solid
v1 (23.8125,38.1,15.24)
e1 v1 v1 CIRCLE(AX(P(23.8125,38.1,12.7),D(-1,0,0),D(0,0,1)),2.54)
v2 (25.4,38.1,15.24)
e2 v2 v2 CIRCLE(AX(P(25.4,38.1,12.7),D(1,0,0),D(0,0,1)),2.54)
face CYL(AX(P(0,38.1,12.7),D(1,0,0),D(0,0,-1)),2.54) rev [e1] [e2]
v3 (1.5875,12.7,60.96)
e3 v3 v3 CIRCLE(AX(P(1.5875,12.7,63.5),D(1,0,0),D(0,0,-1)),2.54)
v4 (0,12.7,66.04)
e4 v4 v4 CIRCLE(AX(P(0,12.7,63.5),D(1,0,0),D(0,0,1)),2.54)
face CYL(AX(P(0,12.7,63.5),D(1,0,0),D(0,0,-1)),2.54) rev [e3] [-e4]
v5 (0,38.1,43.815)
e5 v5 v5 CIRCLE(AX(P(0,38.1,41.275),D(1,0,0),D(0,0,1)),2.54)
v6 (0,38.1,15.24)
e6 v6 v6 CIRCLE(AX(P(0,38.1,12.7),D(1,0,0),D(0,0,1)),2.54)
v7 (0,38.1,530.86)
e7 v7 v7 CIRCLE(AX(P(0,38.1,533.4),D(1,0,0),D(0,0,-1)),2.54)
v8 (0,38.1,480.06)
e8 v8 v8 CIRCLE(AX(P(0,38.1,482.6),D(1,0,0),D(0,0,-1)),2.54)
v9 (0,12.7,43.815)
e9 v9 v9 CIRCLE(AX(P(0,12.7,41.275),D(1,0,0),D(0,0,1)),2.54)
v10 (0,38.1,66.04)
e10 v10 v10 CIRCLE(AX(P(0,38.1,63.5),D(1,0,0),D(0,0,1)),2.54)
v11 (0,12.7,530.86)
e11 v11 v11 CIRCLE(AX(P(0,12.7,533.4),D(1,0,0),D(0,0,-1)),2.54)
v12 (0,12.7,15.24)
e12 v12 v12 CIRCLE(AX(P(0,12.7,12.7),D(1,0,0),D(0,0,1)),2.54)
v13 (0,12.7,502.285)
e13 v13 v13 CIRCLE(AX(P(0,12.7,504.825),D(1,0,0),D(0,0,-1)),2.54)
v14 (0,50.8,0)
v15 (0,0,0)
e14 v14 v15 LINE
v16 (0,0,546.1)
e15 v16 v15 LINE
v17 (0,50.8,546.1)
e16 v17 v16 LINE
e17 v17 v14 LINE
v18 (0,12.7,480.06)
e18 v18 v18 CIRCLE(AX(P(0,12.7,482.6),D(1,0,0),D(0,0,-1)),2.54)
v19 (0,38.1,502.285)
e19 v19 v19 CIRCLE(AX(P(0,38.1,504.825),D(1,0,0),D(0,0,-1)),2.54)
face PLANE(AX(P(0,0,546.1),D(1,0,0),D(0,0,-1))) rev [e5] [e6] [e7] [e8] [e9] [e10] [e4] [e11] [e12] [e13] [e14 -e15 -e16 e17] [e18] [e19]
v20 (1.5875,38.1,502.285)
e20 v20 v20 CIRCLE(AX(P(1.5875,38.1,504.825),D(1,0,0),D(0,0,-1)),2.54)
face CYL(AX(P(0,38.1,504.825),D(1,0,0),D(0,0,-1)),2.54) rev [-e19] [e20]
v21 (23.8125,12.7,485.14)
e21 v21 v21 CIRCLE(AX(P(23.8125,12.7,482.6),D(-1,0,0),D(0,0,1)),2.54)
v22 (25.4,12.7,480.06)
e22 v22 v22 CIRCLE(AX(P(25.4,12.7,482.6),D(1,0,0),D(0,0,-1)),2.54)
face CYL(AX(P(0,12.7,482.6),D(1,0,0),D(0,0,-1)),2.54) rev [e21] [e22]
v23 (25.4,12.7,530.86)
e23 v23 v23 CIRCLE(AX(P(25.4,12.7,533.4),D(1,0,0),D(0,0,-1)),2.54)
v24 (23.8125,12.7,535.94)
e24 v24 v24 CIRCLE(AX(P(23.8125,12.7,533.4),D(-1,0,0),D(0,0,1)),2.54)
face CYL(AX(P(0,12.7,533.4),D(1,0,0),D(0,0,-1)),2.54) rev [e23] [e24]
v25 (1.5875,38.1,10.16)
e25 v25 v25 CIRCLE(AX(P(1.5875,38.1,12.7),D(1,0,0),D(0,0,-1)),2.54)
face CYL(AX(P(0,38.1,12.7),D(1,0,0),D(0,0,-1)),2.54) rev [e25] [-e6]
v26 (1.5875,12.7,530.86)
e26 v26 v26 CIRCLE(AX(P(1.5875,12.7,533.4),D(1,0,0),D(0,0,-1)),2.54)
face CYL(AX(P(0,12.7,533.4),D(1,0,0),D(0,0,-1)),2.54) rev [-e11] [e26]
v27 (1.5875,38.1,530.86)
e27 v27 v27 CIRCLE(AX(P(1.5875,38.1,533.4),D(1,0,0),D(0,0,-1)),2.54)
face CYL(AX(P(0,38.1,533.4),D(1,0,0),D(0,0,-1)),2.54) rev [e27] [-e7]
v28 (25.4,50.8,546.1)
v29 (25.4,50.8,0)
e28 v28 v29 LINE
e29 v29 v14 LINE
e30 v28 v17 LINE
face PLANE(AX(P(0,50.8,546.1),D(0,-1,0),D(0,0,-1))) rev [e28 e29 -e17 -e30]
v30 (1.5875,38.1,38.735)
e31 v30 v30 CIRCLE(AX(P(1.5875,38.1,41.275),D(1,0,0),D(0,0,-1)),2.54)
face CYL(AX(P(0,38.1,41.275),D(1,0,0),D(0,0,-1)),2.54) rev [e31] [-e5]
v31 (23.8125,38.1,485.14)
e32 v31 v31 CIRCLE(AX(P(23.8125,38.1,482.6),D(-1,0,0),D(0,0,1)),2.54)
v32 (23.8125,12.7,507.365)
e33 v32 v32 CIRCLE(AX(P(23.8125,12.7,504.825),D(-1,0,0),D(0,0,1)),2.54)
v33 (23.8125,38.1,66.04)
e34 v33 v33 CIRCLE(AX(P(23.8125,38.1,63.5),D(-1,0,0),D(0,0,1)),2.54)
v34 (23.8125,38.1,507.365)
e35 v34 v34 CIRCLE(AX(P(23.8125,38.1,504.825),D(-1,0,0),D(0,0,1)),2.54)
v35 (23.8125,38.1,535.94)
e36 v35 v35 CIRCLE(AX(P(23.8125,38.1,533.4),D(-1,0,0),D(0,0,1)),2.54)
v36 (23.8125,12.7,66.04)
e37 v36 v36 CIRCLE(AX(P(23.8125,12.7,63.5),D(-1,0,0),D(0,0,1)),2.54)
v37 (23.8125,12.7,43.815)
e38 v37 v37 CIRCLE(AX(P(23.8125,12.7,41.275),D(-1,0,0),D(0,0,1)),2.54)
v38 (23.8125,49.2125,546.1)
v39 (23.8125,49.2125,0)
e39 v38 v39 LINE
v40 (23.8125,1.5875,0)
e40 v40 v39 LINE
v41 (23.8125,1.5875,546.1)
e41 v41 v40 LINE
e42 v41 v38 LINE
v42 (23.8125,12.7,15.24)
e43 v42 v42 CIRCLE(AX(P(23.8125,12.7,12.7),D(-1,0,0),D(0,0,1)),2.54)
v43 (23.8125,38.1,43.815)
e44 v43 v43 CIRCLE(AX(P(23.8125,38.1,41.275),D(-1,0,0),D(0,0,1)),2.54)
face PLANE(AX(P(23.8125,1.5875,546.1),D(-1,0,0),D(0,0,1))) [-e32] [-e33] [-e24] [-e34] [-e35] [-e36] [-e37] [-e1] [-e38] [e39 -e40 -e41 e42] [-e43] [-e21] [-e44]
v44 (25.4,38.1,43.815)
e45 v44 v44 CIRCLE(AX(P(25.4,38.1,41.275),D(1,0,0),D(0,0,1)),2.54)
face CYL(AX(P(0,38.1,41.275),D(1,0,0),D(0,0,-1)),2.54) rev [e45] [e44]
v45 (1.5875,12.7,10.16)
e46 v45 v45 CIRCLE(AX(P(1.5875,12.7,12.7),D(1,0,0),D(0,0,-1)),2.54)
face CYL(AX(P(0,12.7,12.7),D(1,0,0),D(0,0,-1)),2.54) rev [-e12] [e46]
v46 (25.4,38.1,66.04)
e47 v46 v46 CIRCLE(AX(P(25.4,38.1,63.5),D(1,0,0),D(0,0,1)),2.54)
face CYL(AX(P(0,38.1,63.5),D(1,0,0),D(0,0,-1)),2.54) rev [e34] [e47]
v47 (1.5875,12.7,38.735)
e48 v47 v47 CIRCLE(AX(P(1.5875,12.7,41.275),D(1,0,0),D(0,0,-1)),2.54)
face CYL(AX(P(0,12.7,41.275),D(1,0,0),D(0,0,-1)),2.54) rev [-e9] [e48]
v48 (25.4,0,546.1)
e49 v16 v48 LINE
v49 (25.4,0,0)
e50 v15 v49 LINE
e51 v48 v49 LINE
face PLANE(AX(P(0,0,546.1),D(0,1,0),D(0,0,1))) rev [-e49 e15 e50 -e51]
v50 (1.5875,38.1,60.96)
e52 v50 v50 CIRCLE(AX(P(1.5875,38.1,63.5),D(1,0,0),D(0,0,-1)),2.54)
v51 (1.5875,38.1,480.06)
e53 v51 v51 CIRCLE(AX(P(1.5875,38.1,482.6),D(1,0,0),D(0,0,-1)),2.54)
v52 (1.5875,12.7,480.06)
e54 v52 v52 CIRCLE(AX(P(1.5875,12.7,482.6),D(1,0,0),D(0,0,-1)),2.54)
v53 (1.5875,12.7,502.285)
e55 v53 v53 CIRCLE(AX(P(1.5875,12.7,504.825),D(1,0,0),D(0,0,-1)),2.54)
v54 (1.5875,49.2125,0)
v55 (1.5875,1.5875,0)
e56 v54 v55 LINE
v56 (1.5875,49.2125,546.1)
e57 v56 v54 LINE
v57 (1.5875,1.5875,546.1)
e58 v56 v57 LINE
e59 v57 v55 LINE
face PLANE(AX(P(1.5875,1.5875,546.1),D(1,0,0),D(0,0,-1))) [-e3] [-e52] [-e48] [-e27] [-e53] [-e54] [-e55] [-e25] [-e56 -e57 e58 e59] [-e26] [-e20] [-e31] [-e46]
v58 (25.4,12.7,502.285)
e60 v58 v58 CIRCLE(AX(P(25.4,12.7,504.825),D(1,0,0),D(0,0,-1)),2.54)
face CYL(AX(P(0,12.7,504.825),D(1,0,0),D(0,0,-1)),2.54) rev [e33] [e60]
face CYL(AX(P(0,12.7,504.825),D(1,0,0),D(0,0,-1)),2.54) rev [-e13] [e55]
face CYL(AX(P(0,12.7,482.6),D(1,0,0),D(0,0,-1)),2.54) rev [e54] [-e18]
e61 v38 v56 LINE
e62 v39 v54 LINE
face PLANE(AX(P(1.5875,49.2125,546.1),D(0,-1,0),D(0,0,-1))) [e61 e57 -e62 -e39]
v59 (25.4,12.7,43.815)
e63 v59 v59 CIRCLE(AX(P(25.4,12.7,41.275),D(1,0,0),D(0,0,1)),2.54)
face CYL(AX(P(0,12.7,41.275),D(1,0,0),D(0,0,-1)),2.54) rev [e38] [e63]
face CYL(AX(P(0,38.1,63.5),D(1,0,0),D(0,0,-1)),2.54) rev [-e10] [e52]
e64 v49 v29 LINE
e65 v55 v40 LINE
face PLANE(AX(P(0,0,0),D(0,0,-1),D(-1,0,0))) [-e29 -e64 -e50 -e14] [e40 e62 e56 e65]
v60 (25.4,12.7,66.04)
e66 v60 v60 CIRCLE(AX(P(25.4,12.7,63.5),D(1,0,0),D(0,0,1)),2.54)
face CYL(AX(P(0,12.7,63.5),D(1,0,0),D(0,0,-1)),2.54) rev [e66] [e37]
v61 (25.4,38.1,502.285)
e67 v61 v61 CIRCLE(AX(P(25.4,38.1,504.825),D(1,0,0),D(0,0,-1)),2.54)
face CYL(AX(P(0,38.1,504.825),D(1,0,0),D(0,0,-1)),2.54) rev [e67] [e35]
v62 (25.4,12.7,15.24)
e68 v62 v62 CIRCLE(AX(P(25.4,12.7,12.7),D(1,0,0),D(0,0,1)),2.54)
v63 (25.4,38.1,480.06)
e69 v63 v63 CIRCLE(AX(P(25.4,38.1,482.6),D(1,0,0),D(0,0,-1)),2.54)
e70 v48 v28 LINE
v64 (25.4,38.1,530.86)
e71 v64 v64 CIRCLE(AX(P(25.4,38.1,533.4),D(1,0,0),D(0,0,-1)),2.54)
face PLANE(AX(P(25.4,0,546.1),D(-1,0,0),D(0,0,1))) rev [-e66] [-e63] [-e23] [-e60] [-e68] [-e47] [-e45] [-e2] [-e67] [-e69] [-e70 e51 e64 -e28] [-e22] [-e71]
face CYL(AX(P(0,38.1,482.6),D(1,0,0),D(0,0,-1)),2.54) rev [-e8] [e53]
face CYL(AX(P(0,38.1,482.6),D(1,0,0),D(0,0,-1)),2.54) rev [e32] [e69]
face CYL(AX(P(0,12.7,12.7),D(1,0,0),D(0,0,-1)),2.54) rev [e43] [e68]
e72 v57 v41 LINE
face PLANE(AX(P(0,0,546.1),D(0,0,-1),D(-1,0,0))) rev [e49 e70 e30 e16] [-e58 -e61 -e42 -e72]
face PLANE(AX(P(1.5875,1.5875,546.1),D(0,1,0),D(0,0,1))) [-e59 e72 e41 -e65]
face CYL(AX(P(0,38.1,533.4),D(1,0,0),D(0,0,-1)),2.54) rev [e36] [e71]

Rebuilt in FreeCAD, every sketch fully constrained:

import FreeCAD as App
import Part
import Sketcher
Q = App.Units.Quantity

doc = App.newDocument("Part")
body = doc.addObject("PartDesign::Body", "Body")

# Sketch on XY plane
sketch1 = body.newObject("Sketcher::SketchObject", "Sketch")
sketch1.AttachmentSupport = (doc.getObject("XY_Plane"), [""])
sketch1.MapMode = "FlatFace"
sketch1.addGeometry([
    Part.LineSegment(App.Vector(0, 51, 0), App.Vector(0, 0, 0)),  # 0
    Part.LineSegment(App.Vector(0, 0, 0), App.Vector(25, 0, 0)),  # 1
    Part.LineSegment(App.Vector(25, 0, 0), App.Vector(25, 51, 0)),  # 2
    Part.LineSegment(App.Vector(25, 51, 0), App.Vector(0, 51, 0)),  # 3
    Part.LineSegment(App.Vector(24, 2, 0), App.Vector(2, 2, 0)),  # 4
    Part.LineSegment(App.Vector(2, 2, 0), App.Vector(2, 49, 0)),  # 5
    Part.LineSegment(App.Vector(2, 49, 0), App.Vector(24, 49, 0)),  # 6
    Part.LineSegment(App.Vector(24, 49, 0), App.Vector(24, 2, 0)),  # 7
], False)
sketch1.addConstraint([
    Sketcher.Constraint("Coincident", 0, 2, 1, 1),
    Sketcher.Constraint("Coincident", 1, 2, 2, 1),
    Sketcher.Constraint("Coincident", 2, 2, 3, 1),
    Sketcher.Constraint("Coincident", 3, 2, 0, 1),
    Sketcher.Constraint("Coincident", 4, 2, 5, 1),
    Sketcher.Constraint("Coincident", 5, 2, 6, 1),
    Sketcher.Constraint("Coincident", 6, 2, 7, 1),
    Sketcher.Constraint("Coincident", 7, 2, 4, 1),
    Sketcher.Constraint("Vertical", 0),
    Sketcher.Constraint("Horizontal", 1),
    Sketcher.Constraint("Vertical", 2),
    Sketcher.Constraint("Horizontal", 3),
    Sketcher.Constraint("Horizontal", 4),
    Sketcher.Constraint("Vertical", 5),
    Sketcher.Constraint("Horizontal", 6),
    Sketcher.Constraint("Vertical", 7),
    Sketcher.Constraint("Coincident", 0, 2, -1, 1),
    Sketcher.Constraint("DistanceX", 1, 1, 1, 2, Q("1 in")),
    Sketcher.Constraint("DistanceY", 0, 2, 0, 1, Q("2 in")),
    Sketcher.Constraint("DistanceX", 4, 2, 4, 1, Q("0.875 in")),
    Sketcher.Constraint("DistanceY", 5, 1, 5, 2, Q("1.875 in")),
    Sketcher.Constraint("DistanceX", -1, 1, 4, 2, Q("0.0625 in")),
    Sketcher.Constraint("DistanceY", -1, 1, 4, 2, Q("0.0625 in")),
])
pad1 = body.newObject("PartDesign::Pad", "Pad")
pad1.Profile = sketch1
pad1.Length = Q("21.5 in")

# Sketch on YZ plane
sketch2 = body.newObject("Sketcher::SketchObject", "Sketch001")
sketch2.AttachmentSupport = (doc.getObject("YZ_Plane"), [""])
sketch2.MapMode = "FlatFace"
sketch2.AttachmentOffset = App.Placement(App.Vector(0, 0, 1 * 25.4), App.Rotation())
sketch2.addGeometry([
    Part.Circle(App.Vector(38.1, 504.8, 0), App.Vector(0, 0, 1), 2.5),  # 0
    Part.Circle(App.Vector(12.7, 504.8, 0), App.Vector(0, 0, 1), 2.5),  # 1
    Part.Circle(App.Vector(38.1, 482.6, 0), App.Vector(0, 0, 1), 2.5),  # 2
    Part.Circle(App.Vector(12.7, 482.6, 0), App.Vector(0, 0, 1), 2.5),  # 3
    Part.Circle(App.Vector(12.7, 533.4, 0), App.Vector(0, 0, 1), 2.5),  # 4
    Part.Circle(App.Vector(38.1, 533.4, 0), App.Vector(0, 0, 1), 2.5),  # 5
    Part.Circle(App.Vector(38.1, 12.7, 0), App.Vector(0, 0, 1), 2.5),  # 6
    Part.Circle(App.Vector(12.7, 12.7, 0), App.Vector(0, 0, 1), 2.5),  # 7
    Part.Circle(App.Vector(12.7, 63.5, 0), App.Vector(0, 0, 1), 2.5),  # 8
    Part.Circle(App.Vector(38.1, 63.5, 0), App.Vector(0, 0, 1), 2.5),  # 9
    Part.Circle(App.Vector(12.7, 41.3, 0), App.Vector(0, 0, 1), 2.5),  # 10
    Part.Circle(App.Vector(38.1, 41.3, 0), App.Vector(0, 0, 1), 2.5),  # 11
], False)
sketch2.addConstraint([
    Sketcher.Constraint("Equal", 0, 1),
    Sketcher.Constraint("Equal", 1, 2),
    Sketcher.Constraint("Equal", 2, 3),
    Sketcher.Constraint("Equal", 3, 4),
    Sketcher.Constraint("Equal", 4, 5),
    Sketcher.Constraint("Equal", 5, 6),
    Sketcher.Constraint("Equal", 6, 7),
    Sketcher.Constraint("Equal", 7, 8),
    Sketcher.Constraint("Equal", 8, 9),
    Sketcher.Constraint("Equal", 9, 10),
    Sketcher.Constraint("Equal", 10, 11),
    Sketcher.Constraint("Horizontal", 0, 3, 1, 3),
    Sketcher.Constraint("Horizontal", 2, 3, 3, 3),
    Sketcher.Constraint("Horizontal", 4, 3, 5, 3),
    Sketcher.Constraint("Horizontal", 6, 3, 7, 3),
    Sketcher.Constraint("Horizontal", 8, 3, 9, 3),
    Sketcher.Constraint("Horizontal", 10, 3, 11, 3),
    Sketcher.Constraint("Vertical", 0, 3, 2, 3),
    Sketcher.Constraint("Vertical", 1, 3, 3, 3),
    Sketcher.Constraint("Vertical", 3, 3, 4, 3),
    Sketcher.Constraint("Vertical", 2, 3, 5, 3),
    Sketcher.Constraint("Vertical", 5, 3, 6, 3),
    Sketcher.Constraint("Vertical", 4, 3, 7, 3),
    Sketcher.Constraint("Vertical", 7, 3, 8, 3),
    Sketcher.Constraint("Vertical", 6, 3, 9, 3),
    Sketcher.Constraint("Vertical", 8, 3, 10, 3),
    Sketcher.Constraint("Vertical", 9, 3, 11, 3),
    Sketcher.Constraint("Diameter", 0, Q("0.2 in")),
    Sketcher.Constraint("DistanceY", -1, 1, 2, 3, Q("19 in")),
    Sketcher.Constraint("DistanceY", -1, 1, 4, 3, Q("21 in")),
    Sketcher.Constraint("DistanceX", 1, 3, 0, 3, Q("1 in")),
    Sketcher.Constraint("DistanceY", 7, 3, 8, 3, Q("2 in")),
    Sketcher.Constraint("DistanceX", -1, 1, 0, 3, Q("1.5 in")),
    Sketcher.Constraint("DistanceY", -1, 1, 6, 3, Q("0.5 in")),
    Sketcher.Constraint("DistanceY", -1, 1, 0, 3, Q("19.875 in")),
    Sketcher.Constraint("DistanceY", -1, 1, 10, 3, Q("1.625 in")),
])
pocket1 = body.newObject("PartDesign::Pocket", "Pocket")
pocket1.Profile = sketch2
pocket1.Type = "ThroughAll"

doc.recompute()
